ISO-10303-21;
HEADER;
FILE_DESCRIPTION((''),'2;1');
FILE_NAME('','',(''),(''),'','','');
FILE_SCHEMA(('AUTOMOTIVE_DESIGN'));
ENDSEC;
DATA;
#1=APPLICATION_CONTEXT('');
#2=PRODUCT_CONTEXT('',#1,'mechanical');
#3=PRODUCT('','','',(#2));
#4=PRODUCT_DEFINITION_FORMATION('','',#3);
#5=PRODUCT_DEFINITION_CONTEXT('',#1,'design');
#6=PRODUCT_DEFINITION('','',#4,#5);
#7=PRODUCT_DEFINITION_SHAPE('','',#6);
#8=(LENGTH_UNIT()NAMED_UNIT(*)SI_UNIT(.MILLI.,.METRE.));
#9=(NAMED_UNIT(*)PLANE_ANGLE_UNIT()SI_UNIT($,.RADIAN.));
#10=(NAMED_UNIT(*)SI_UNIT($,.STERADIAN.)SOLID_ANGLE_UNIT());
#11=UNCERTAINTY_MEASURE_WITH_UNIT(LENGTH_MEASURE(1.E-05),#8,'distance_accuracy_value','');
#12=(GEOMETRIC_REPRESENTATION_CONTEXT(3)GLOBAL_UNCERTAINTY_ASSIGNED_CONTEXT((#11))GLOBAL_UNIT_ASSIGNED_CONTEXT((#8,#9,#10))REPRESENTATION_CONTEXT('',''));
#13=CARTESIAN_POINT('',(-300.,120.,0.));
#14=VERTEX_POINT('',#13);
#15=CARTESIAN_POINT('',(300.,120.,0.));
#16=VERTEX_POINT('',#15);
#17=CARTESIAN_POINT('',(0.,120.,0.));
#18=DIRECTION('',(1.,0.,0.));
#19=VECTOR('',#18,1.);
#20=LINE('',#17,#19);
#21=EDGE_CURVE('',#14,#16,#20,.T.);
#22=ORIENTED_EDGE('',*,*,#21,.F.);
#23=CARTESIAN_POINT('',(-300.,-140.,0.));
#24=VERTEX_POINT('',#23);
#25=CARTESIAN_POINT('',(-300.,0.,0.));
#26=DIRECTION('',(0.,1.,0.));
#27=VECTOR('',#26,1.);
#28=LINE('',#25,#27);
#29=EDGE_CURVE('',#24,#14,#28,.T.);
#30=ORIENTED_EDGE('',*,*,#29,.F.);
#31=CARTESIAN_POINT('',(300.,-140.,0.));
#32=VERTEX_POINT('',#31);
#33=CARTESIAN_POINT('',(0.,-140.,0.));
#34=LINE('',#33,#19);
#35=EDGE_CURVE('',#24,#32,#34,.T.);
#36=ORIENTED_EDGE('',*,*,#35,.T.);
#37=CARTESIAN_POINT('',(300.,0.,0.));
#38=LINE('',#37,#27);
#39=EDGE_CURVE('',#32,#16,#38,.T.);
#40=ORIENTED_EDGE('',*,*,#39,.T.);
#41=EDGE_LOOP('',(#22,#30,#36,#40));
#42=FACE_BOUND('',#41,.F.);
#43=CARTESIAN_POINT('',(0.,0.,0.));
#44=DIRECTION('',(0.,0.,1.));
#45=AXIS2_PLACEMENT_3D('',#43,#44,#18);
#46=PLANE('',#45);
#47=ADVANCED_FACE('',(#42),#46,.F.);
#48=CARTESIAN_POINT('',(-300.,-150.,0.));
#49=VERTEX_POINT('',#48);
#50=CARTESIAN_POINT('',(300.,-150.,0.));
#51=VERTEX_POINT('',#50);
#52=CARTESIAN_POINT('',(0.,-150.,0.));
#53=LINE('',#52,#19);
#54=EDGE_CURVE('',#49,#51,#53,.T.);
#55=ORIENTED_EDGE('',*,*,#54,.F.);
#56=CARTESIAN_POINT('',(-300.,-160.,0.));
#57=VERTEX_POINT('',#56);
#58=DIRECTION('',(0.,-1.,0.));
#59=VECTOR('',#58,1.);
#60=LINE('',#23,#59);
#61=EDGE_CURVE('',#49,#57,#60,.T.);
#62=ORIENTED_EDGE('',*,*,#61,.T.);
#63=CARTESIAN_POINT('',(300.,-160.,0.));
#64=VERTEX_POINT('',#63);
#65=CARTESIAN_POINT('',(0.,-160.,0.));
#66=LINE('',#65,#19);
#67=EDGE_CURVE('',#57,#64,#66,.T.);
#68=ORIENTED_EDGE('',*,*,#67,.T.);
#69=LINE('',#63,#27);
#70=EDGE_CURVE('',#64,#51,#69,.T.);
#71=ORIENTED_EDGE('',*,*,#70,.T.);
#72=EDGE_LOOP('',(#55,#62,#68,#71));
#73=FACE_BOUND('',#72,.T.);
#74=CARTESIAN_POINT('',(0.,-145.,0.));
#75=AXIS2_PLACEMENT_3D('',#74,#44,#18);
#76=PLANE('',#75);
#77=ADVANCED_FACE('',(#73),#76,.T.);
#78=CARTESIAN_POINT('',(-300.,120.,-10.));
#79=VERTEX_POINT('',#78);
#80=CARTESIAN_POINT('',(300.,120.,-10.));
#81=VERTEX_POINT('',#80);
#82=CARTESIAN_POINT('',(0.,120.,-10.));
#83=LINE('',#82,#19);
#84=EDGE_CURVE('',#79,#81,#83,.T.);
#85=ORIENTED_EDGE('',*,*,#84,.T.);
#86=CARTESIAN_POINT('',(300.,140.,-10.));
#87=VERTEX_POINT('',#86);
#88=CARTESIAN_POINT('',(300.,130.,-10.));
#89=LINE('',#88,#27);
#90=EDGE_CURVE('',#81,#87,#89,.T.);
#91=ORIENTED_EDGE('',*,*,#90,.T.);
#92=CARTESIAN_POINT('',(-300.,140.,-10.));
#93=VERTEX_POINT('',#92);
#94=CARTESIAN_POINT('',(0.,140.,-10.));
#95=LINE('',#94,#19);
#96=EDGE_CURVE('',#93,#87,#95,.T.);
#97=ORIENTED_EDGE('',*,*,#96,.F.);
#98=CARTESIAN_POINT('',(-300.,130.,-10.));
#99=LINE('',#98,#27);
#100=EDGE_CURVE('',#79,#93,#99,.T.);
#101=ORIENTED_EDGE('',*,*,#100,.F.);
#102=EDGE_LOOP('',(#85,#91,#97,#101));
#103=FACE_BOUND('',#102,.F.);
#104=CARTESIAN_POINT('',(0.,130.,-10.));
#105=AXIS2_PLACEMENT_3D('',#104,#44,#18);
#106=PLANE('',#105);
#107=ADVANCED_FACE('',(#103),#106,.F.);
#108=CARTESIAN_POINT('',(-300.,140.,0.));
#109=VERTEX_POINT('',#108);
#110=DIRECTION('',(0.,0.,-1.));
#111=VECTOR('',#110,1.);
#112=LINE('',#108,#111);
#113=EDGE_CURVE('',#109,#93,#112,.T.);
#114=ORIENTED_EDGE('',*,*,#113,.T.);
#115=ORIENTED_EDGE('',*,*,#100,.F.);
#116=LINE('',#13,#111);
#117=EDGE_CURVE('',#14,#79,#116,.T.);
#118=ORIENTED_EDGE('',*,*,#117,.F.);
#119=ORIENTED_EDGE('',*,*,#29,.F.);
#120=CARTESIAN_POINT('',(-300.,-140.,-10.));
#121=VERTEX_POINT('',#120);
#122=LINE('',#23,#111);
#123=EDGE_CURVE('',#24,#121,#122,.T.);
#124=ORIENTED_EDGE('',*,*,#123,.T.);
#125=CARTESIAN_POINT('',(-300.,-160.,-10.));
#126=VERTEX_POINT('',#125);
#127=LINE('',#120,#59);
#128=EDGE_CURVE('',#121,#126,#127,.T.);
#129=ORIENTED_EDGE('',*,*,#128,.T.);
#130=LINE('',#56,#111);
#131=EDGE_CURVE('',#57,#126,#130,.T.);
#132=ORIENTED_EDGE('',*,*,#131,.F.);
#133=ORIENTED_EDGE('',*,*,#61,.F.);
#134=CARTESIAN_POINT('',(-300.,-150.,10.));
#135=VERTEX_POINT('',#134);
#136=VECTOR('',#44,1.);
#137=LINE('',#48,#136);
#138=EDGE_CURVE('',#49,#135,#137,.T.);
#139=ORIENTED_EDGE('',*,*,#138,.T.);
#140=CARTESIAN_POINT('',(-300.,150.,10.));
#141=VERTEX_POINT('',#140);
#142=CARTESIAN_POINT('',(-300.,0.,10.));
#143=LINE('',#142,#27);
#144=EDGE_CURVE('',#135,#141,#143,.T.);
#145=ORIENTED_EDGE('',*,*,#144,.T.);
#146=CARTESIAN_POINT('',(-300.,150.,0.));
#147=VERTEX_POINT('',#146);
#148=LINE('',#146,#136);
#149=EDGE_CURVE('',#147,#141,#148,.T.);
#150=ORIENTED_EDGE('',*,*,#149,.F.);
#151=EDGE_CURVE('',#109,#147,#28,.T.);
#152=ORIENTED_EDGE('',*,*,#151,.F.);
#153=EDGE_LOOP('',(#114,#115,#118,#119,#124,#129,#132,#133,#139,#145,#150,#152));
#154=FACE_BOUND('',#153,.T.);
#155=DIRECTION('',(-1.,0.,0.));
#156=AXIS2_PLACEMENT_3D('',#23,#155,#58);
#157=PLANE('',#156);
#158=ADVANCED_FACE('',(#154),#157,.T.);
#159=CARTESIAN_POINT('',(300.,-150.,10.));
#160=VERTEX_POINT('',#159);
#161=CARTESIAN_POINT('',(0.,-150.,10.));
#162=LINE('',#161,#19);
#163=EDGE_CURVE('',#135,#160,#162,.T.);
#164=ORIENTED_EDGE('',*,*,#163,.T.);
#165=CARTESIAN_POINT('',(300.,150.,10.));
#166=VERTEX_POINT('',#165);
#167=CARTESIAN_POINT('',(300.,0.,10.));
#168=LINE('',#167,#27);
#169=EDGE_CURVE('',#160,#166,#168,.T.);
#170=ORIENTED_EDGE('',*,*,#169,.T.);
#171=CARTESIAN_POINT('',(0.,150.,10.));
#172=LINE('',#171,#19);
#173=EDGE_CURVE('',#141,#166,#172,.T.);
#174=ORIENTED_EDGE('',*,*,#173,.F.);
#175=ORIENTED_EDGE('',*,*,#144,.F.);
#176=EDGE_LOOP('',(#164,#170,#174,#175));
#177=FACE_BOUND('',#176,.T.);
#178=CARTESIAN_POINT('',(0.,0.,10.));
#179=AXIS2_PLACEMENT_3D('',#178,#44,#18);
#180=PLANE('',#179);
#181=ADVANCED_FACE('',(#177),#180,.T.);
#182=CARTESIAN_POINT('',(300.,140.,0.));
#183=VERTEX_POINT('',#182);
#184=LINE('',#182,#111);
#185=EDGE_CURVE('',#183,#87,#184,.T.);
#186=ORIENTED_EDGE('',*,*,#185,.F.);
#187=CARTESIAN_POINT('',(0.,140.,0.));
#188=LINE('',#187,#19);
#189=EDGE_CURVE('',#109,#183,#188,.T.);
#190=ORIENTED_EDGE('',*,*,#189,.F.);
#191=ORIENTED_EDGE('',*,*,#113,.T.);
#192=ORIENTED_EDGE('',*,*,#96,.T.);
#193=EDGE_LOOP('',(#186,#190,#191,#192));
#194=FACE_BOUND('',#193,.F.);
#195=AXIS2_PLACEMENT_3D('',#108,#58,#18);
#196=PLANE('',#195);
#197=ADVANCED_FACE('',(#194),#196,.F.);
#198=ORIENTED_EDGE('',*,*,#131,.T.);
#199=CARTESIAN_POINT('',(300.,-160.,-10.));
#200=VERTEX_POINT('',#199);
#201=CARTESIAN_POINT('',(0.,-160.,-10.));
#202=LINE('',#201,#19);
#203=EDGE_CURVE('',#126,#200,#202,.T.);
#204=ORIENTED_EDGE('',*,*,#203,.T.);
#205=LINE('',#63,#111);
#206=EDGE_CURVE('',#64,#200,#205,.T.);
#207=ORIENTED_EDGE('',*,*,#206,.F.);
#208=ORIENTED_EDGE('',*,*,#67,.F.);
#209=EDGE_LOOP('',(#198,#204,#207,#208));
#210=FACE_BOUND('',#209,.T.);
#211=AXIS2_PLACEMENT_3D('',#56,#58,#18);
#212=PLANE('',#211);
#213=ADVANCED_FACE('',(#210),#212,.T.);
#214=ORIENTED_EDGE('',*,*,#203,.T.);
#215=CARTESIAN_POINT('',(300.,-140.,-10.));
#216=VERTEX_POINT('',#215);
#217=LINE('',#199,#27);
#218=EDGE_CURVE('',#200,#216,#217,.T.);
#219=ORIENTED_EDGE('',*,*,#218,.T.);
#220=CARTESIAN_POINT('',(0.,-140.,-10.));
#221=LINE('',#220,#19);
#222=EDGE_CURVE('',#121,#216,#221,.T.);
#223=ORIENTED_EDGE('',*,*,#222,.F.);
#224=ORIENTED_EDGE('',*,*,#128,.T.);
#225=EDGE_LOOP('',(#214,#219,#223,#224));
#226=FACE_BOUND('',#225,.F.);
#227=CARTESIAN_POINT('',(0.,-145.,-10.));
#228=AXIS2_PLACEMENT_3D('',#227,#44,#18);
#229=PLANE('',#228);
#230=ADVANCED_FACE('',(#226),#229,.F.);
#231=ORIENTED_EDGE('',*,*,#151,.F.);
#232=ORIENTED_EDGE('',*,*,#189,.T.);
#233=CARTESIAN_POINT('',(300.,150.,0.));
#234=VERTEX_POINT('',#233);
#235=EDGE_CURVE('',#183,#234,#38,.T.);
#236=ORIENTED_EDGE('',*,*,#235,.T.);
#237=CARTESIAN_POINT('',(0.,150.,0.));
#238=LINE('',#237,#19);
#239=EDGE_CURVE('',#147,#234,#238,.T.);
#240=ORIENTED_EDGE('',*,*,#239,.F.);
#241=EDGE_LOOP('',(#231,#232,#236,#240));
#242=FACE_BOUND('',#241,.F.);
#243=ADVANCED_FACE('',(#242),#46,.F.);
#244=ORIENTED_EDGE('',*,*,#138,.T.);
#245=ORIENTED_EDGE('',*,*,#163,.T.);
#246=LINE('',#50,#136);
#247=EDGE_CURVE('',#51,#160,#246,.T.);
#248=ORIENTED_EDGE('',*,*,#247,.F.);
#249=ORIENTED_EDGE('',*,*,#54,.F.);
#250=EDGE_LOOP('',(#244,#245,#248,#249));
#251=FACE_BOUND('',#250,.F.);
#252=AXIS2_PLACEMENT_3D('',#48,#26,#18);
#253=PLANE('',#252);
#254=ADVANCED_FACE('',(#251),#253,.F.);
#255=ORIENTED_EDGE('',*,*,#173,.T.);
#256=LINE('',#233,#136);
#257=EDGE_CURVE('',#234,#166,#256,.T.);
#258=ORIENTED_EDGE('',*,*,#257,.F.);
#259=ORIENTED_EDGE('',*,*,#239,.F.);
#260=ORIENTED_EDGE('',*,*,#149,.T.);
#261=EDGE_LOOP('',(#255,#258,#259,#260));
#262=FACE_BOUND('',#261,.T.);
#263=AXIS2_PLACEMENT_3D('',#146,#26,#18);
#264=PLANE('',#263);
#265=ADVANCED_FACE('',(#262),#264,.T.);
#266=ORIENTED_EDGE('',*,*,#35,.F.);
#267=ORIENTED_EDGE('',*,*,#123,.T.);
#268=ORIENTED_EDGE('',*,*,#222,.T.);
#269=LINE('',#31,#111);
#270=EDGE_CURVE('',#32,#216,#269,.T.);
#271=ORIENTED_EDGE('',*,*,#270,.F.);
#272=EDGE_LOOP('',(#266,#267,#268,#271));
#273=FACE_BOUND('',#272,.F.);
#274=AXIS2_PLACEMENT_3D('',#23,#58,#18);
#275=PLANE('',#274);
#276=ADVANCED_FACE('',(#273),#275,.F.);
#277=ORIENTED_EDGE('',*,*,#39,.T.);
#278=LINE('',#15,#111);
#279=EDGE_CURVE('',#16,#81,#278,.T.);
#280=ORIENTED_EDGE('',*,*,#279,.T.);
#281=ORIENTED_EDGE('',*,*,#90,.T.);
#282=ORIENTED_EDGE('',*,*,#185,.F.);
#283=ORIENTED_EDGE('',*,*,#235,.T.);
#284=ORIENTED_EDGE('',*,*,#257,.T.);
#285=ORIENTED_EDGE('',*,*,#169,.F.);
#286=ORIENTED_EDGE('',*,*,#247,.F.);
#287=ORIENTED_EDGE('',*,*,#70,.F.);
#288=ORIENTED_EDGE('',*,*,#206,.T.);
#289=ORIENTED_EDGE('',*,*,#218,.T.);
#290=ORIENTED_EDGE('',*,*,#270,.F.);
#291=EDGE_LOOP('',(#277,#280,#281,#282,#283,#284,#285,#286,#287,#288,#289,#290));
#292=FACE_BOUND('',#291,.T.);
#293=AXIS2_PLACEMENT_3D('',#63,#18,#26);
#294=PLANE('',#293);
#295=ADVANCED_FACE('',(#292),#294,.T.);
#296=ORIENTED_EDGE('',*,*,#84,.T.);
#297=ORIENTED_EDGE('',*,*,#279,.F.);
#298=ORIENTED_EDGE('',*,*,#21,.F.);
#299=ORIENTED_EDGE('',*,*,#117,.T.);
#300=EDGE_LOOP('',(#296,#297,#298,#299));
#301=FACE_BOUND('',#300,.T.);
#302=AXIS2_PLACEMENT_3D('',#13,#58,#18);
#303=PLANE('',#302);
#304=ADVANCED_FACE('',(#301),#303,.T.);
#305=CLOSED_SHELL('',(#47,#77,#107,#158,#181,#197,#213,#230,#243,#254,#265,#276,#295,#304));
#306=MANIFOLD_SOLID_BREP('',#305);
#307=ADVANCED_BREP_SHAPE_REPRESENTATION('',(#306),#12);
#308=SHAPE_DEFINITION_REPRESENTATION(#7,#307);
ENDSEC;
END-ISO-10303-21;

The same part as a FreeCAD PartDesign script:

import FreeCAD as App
import Part
import Sketcher
Q = App.Units.Quantity

doc = App.newDocument("Part")
body = doc.addObject("PartDesign::Body", "Body")

# Sketch on XY plane
sketch1 = doc.addObject("Sketcher::SketchObject", "Sketch")
body.addObject(sketch1)
sketch1.AttachmentSupport = (doc.XY_Plane, [""])
sketch1.MapMode = "FlatFace"
sketch1.addGeometry([
    Part.LineSegment(App.Vector(-300, 150, 0), App.Vector(-300, -150, 0)),
    Part.LineSegment(App.Vector(-300, -150, 0), App.Vector(300, -150, 0)),
    Part.LineSegment(App.Vector(300, -150, 0), App.Vector(300, 150, 0)),
    Part.LineSegment(App.Vector(300, 150, 0), App.Vector(-300, 150, 0)),
], False)
sketch1.addConstraint([
    Sketcher.Constraint("Coincident", 0, 2, 1, 1),
    Sketcher.Constraint("Coincident", 1, 2, 2, 1),
    Sketcher.Constraint("Coincident", 2, 2, 3, 1),
    Sketcher.Constraint("Coincident", 3, 2, 0, 1),
    Sketcher.Constraint("Vertical", 0),
    Sketcher.Constraint("Horizontal", 1),
    Sketcher.Constraint("Vertical", 2),
    Sketcher.Constraint("Horizontal", 3),
    Sketcher.Constraint("Symmetric", 0, 2, 2, 2, -1, 1),
    Sketcher.Constraint("DistanceX", 1, 1, 1, 2, Q("600 mm")),
    Sketcher.Constraint("DistanceY", 0, 2, 0, 1, Q("300 mm")),
])
pad1 = doc.addObject("PartDesign::Pad", "Pad")
body.addObject(pad1)
pad1.Profile = sketch1
pad1.Length = 10

# Sketch on XY plane
sketch2 = doc.addObject("Sketcher::SketchObject", "Sketch001")
body.addObject(sketch2)
sketch2.AttachmentSupport = (doc.XY_Plane, [""])
sketch2.MapMode = "FlatFace"
sketch2.addGeometry([
    Part.LineSegment(App.Vector(-300, -140, 0), App.Vector(-300, -160, 0)),  # 0
    Part.LineSegment(App.Vector(-300, -160, 0), App.Vector(300, -160, 0)),  # 1
    Part.LineSegment(App.Vector(300, -160, 0), App.Vector(300, -140, 0)),  # 2
    Part.LineSegment(App.Vector(300, -140, 0), App.Vector(-300, -140, 0)),  # 3
    Part.LineSegment(App.Vector(-300, 140, 0), App.Vector(-300, 120, 0)),  # 4
    Part.LineSegment(App.Vector(-300, 120, 0), App.Vector(300, 120, 0)),  # 5
    Part.LineSegment(App.Vector(300, 120, 0), App.Vector(300, 140, 0)),  # 6
    Part.LineSegment(App.Vector(300, 140, 0), App.Vector(-300, 140, 0)),  # 7
], False)
sketch2.addConstraint([
    Sketcher.Constraint("Coincident", 0, 2, 1, 1),
    Sketcher.Constraint("Coincident", 1, 2, 2, 1),
    Sketcher.Constraint("Coincident", 2, 2, 3, 1),
    Sketcher.Constraint("Coincident", 3, 2, 0, 1),
    Sketcher.Constraint("Coincident", 4, 2, 5, 1),
    Sketcher.Constraint("Coincident", 5, 2, 6, 1),
    Sketcher.Constraint("Coincident", 6, 2, 7, 1),
    Sketcher.Constraint("Coincident", 7, 2, 4, 1),
    Sketcher.Constraint("Vertical", 0),
    Sketcher.Constraint("Horizontal", 1),
    Sketcher.Constraint("Vertical", 2),
    Sketcher.Constraint("Horizontal", 3),
    Sketcher.Constraint("Vertical", 4),
    Sketcher.Constraint("Horizontal", 5),
    Sketcher.Constraint("Vertical", 6),
    Sketcher.Constraint("Horizontal", 7),
    Sketcher.Constraint("Symmetric", 3, 2, 6, 2, -1, 1),
    Sketcher.Constraint("Vertical", 3, 2, 4, 2),
    Sketcher.Constraint("Vertical", 2, 2, 5, 2),
    Sketcher.Constraint("Equal", 2, 4),
    Sketcher.Constraint("DistanceX", 1, 1, 1, 2, Q("600 mm")),
    Sketcher.Constraint("DistanceY", 0, 2, 0, 1, Q("20 mm")),
    Sketcher.Constraint("DistanceY", 0, 2, -1, 1, Q("160 mm")),
])
pad2 = doc.addObject("PartDesign::Pad", "Pad001")
body.addObject(pad2)
pad2.Profile = sketch2
pad2.Length = 10
pad2.Reversed = True

doc.recompute()
